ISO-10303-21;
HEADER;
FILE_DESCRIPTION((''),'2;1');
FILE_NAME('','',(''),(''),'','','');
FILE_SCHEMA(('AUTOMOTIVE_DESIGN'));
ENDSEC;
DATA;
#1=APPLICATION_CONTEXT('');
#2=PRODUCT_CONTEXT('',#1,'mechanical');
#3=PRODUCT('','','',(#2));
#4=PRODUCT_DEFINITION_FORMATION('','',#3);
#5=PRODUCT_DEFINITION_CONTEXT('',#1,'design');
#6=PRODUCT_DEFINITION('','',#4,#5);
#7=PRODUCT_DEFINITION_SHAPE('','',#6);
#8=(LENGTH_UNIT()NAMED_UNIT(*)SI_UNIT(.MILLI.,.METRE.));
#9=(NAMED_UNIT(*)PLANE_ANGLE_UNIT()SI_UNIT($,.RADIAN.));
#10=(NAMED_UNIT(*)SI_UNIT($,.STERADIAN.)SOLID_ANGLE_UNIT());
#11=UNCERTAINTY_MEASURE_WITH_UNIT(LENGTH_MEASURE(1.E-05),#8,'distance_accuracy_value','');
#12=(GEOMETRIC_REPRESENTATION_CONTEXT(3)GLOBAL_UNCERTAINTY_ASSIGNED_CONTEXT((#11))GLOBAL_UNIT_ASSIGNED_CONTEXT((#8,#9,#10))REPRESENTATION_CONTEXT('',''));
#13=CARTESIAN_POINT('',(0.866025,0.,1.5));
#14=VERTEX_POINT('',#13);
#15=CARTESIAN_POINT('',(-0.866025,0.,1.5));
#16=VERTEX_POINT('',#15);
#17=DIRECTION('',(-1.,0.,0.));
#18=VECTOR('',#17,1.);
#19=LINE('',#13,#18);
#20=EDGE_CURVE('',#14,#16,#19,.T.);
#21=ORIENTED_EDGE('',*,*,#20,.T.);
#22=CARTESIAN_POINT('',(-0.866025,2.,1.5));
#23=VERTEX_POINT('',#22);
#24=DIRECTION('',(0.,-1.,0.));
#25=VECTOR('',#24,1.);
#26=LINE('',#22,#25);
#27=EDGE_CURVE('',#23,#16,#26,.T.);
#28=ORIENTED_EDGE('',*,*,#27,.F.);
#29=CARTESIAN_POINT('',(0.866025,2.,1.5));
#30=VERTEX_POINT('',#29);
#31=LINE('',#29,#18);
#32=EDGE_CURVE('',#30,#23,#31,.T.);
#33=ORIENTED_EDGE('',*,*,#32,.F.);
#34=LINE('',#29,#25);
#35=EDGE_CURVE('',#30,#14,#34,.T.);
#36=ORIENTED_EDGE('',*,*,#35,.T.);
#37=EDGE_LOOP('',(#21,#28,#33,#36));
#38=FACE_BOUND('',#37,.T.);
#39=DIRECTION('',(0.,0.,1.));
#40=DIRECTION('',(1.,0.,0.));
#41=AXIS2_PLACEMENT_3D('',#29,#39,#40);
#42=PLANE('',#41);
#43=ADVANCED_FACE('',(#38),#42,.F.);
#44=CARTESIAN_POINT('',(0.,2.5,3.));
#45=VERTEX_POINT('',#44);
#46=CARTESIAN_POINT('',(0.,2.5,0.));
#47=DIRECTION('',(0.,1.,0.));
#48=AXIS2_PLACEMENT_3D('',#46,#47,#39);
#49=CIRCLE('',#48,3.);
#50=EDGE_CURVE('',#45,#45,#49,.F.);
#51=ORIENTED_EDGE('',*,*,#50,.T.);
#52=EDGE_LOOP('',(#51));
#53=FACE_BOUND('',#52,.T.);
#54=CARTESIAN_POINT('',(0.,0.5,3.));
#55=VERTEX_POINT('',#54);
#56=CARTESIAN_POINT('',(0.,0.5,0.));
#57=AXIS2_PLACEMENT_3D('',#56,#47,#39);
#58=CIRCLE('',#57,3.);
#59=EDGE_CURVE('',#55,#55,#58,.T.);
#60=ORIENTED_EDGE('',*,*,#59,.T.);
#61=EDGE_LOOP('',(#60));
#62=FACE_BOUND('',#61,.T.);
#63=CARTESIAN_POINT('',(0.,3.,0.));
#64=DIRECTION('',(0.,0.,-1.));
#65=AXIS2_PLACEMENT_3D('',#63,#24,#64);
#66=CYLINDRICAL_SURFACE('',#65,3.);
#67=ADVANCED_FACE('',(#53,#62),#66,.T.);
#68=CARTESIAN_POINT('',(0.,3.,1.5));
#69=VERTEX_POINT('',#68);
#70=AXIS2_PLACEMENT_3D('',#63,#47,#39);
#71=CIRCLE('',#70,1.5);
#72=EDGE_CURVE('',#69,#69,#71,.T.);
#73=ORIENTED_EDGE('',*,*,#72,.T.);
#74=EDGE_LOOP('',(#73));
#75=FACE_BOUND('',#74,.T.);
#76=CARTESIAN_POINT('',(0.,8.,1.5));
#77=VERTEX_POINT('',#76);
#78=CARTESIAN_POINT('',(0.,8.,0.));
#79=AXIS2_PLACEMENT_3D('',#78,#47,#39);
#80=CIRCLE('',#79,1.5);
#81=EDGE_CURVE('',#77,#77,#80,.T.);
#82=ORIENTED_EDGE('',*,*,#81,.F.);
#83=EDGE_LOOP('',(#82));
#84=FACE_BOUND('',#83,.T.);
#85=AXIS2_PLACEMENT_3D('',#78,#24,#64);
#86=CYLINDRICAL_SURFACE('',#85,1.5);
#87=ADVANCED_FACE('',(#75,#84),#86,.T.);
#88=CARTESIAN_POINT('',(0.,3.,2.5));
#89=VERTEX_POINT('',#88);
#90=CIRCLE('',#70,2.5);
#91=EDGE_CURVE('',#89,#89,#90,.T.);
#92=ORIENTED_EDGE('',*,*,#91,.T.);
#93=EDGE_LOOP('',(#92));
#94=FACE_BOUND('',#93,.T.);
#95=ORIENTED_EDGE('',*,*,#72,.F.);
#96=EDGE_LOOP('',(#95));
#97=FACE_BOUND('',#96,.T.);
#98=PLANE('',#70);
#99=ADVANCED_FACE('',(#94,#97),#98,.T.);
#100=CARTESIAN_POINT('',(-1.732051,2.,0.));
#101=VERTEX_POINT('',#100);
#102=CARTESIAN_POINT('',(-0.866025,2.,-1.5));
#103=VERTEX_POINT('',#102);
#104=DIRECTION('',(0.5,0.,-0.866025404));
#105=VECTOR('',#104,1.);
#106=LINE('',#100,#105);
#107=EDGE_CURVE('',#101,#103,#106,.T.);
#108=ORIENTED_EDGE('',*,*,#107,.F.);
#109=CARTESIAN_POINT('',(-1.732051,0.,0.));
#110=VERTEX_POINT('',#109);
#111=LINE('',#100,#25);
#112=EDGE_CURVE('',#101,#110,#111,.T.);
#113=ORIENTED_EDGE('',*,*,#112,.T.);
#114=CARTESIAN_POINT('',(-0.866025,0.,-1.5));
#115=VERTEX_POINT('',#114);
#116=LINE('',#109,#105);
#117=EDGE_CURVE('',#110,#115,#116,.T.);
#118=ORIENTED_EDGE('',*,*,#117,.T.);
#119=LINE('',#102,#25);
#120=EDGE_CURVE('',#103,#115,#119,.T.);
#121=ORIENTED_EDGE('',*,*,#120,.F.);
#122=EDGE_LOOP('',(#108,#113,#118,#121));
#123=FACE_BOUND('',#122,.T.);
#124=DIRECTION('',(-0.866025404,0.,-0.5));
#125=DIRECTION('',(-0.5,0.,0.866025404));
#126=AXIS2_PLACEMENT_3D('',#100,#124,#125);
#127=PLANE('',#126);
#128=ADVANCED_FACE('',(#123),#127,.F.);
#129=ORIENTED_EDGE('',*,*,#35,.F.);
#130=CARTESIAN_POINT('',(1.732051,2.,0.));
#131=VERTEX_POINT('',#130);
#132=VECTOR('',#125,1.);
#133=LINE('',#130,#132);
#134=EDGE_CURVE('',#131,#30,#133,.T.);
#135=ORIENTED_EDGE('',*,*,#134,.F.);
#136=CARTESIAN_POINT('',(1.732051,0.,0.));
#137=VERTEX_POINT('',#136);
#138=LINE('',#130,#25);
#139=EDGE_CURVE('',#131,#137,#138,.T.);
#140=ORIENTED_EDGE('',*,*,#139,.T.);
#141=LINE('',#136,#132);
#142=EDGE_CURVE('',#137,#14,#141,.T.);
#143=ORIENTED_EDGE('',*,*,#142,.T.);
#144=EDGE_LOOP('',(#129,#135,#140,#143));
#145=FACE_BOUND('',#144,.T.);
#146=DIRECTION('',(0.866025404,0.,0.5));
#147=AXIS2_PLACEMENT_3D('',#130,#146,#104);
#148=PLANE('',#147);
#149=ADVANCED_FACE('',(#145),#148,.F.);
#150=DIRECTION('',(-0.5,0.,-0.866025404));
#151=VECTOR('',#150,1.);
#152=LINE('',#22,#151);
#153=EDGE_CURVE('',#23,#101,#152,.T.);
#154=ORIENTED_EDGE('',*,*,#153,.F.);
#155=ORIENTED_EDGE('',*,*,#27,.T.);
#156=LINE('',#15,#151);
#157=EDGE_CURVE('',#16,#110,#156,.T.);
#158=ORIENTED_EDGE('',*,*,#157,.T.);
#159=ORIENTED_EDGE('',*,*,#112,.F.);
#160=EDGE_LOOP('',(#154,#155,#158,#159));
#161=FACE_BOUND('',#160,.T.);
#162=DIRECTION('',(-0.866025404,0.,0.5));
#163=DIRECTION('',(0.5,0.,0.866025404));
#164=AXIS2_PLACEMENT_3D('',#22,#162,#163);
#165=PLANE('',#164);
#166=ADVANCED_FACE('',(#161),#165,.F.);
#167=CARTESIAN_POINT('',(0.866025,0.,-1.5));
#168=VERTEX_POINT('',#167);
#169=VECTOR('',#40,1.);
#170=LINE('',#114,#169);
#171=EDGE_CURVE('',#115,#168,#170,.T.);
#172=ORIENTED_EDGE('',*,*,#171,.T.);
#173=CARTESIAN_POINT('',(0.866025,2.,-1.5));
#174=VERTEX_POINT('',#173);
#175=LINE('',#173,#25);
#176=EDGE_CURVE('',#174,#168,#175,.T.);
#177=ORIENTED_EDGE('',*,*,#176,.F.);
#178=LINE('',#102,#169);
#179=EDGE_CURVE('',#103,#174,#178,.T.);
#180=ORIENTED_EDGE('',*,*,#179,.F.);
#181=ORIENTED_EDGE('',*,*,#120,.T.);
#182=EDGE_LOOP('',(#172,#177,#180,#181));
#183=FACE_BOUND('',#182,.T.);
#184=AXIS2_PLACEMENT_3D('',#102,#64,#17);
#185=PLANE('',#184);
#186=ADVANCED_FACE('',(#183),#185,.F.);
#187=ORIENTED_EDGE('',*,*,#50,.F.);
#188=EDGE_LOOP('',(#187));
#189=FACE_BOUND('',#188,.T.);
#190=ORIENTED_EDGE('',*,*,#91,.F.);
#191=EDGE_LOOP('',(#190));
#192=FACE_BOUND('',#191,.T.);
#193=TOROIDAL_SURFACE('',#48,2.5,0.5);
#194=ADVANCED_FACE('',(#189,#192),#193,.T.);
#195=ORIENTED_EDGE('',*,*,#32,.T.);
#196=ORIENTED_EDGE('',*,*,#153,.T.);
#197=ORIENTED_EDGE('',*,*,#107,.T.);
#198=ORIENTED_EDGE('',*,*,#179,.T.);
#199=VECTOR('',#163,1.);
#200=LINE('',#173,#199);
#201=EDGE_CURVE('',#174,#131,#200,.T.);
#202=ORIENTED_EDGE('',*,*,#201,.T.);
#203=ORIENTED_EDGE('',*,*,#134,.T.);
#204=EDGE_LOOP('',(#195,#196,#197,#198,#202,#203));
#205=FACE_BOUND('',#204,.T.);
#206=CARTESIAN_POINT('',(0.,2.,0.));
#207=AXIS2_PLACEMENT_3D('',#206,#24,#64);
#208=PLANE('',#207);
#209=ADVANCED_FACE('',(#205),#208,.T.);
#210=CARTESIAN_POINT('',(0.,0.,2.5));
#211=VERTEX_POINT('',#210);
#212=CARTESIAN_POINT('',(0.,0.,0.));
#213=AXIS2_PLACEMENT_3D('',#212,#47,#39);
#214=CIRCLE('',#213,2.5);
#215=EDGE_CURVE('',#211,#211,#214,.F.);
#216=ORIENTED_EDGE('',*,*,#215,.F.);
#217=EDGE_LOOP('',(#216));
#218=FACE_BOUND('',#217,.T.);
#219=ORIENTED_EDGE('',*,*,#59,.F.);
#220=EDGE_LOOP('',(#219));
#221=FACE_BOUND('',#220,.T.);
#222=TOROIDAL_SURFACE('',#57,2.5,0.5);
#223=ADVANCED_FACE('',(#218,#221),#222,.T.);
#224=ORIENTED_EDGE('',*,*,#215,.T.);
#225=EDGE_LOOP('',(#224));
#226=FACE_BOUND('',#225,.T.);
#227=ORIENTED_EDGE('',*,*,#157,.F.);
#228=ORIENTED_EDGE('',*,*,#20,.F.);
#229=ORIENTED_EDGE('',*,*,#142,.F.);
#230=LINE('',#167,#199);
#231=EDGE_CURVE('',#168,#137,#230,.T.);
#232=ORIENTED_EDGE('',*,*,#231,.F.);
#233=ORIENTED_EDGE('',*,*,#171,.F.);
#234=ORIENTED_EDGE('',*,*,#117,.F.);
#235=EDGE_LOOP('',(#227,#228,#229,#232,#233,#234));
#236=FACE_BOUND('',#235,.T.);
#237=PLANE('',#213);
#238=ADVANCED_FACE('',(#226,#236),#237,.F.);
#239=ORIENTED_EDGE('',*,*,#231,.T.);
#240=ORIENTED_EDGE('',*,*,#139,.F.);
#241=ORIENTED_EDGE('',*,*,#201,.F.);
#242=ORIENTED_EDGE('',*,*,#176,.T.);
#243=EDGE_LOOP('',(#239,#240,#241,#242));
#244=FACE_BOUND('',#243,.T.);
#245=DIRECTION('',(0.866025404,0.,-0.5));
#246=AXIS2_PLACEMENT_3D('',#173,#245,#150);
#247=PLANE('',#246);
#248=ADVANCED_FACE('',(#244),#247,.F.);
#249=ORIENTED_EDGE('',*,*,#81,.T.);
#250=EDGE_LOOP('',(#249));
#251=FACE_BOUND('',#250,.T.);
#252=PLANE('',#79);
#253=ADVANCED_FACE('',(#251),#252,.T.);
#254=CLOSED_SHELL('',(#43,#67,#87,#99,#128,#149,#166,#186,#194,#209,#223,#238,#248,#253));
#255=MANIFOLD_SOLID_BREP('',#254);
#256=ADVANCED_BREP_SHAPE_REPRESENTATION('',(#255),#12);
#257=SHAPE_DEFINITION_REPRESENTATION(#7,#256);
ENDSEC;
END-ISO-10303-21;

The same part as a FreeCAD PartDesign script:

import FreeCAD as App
import Part
import Sketcher
Q = App.Units.Quantity


def edges_at(feature, points):
    """Names of the edges that pass closest to the given points."""
    edges = feature.Shape.Edges
    near = lambda p: min(range(len(edges)), key=lambda i: edges[i].distToShape(Part.Vertex(*p))[0])
    return sorted({f"Edge{near(p) + 1}" for p in points})

doc = App.newDocument("Part")
body = doc.addObject("PartDesign::Body", "Body")

# Sketch on XZ plane
sketch1 = body.newObject("Sketcher::SketchObject", "Sketch")
sketch1.AttachmentSupport = (doc.getObject("XZ_Plane"), [""])
sketch1.MapMode = "FlatFace"
sketch1.addGeometry(Part.Circle(App.Vector(0, 0, 0), App.Vector(0, 0, 1), 3), False)
sketch1.addConstraint([
    Sketcher.Constraint("Coincident", 0, 3, -1, 1),
    Sketcher.Constraint("Diameter", 0, 6.0),
])
pad1 = body.newObject("PartDesign::Pad", "Pad")
pad1.Profile = sketch1
pad1.Length = 3
pad1.Reversed = True

# Sketch on XZ plane
sketch2 = body.newObject("Sketcher::SketchObject", "Sketch001")
sketch2.AttachmentSupport = (doc.getObject("XZ_Plane"), [""])
sketch2.MapMode = "FlatFace"
sketch2.AttachmentOffset = App.Placement(App.Vector(0, 0, -3), App.Rotation())
sketch2.addGeometry(Part.Circle(App.Vector(0, 0, 0), App.Vector(0, 0, 1), 1.5), False)
sketch2.addConstraint([
    Sketcher.Constraint("Coincident", 0, 3, -1, 1),
    Sketcher.Constraint("Diameter", 0, 3.0),
])
pad2 = body.newObject("PartDesign::Pad", "Pad001")
pad2.Profile = sketch2
pad2.Length = 5
pad2.Reversed = True
doc.recompute()

fillet = body.newObject("PartDesign::Fillet", "Fillet")
fillet.Base = (pad2, edges_at(pad2, [(0, 0, -3), (0, 3, -3)]))
fillet.Radius = 0.5

# Sketch on XZ plane
sketch3 = body.newObject("Sketcher::SketchObject", "Sketch002")
sketch3.AttachmentSupport = (doc.getObject("XZ_Plane"), [""])
sketch3.MapMode = "FlatFace"
sketch3.addGeometry([
    Part.LineSegment(App.Vector(1.7, 0, 0), App.Vector(0.9, 1.5, 0)),  # 0
    Part.LineSegment(App.Vector(0.9, 1.5, 0), App.Vector(-0.9, 1.5, 0)),  # 1
    Part.LineSegment(App.Vector(-0.9, 1.5, 0), App.Vector(-1.7, 0, 0)),  # 2
    Part.LineSegment(App.Vector(-1.7, 0, 0), App.Vector(-0.9, -1.5, 0)),  # 3
    Part.LineSegment(App.Vector(-0.9, -1.5, 0), App.Vector(0.9, -1.5, 0)),  # 4
    Part.LineSegment(App.Vector(0.9, -1.5, 0), App.Vector(1.7, 0, 0)),  # 5
], False)
sketch3.addConstraint([
    Sketcher.Constraint("Coincident", 0, 2, 1, 1),
    Sketcher.Constraint("Coincident", 1, 2, 2, 1),
    Sketcher.Constraint("Coincident", 2, 2, 3, 1),
    Sketcher.Constraint("Coincident", 3, 2, 4, 1),
    Sketcher.Constraint("Coincident", 4, 2, 5, 1),
    Sketcher.Constraint("Coincident", 5, 2, 0, 1),
    Sketcher.Constraint("Horizontal", 1),
    Sketcher.Constraint("Horizontal", 4),
    Sketcher.Constraint("Symmetric", 0, 2, 3, 2, -1, 1),
    Sketcher.Constraint("Symmetric", 2, 2, 5, 2, -1, 1),
    Sketcher.Constraint("PointOnObject", 2, 2, -1),
    Sketcher.Constraint("Parallel", 2, 5),
    Sketcher.Constraint("Vertical", 1, 2, 3, 2),
    Sketcher.Constraint("Angle", 0, Q("120 deg")),
    Sketcher.Constraint("DistanceY", 3, 2, 1, 2, 3.0),
    Sketcher.Constraint("DistanceX", 1, 2, 1, 1, 1.732051),
])
pocket1 = body.newObject("PartDesign::Pocket", "Pocket")
pocket1.Profile = sketch3
pocket1.Length = 2

doc.recompute()
